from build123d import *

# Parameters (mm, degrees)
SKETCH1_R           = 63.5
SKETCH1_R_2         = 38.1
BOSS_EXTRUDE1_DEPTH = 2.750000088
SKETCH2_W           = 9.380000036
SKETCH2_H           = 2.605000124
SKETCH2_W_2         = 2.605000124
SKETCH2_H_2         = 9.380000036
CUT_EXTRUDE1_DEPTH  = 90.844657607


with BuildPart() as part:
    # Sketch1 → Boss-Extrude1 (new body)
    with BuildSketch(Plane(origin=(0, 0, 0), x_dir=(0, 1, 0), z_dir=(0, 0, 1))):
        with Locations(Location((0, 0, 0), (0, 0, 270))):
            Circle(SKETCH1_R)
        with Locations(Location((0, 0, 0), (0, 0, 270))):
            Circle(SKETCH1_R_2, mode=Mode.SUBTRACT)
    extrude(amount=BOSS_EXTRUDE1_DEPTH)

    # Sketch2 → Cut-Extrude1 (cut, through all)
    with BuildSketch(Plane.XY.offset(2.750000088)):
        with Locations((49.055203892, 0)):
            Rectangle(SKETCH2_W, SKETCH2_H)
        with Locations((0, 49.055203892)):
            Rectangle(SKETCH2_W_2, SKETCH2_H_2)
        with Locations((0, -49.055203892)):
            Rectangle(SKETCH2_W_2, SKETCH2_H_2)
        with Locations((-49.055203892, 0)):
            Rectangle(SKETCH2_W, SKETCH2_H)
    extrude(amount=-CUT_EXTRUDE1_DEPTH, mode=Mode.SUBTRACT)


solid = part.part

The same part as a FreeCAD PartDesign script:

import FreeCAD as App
import Part
import Sketcher
from FreeCAD import Vector
Q = App.Units.Quantity

doc = App.newDocument("Part")
body = doc.addObject("PartDesign::Body", "Body")

# Sketch on XY plane
sketch1 = body.newObject("Sketcher::SketchObject", "Sketch")
sketch1.AttachmentSupport = (doc.getObject("XY_Plane"), [""])
sketch1.MapMode = "FlatFace"
sketch1.addGeometry([
    Part.Circle(Vector(0, 0, 0), Vector(0, 0, 1), 63.5),
    Part.Circle(Vector(0, 0, 0), Vector(0, 0, 1), 38.1),
], False)
sketch1.addConstraint([
    Sketcher.Constraint("Coincident", 0, 3, -1, 1),
    Sketcher.Constraint("Coincident", 1, 3, -1, 1),
    Sketcher.Constraint("Diameter", 0, Q("5 in")),
    Sketcher.Constraint("Diameter", 1, Q("3 in")),
])
pad1 = body.newObject("PartDesign::Pad", "Pad")
pad1.Profile = sketch1
pad1.Length = 2.75

# Sketch on XY plane
sketch2 = body.newObject("Sketcher::SketchObject", "Sketch001")
sketch2.AttachmentSupport = (doc.getObject("XY_Plane"), [""])
sketch2.MapMode = "FlatFace"
sketch2.AttachmentOffset = App.Placement(Vector(0, 0, 2.75), App.Rotation())
sketch2.addGeometry([
    Part.LineSegment(Vector(44.365204, 1.3025, 0), Vector(44.365204, -1.3025, 0)),  # 0
    Part.LineSegment(Vector(44.365204, -1.3025, 0), Vector(53.745204, -1.3025, 0)),  # 1
    Part.LineSegment(Vector(53.745204, -1.3025, 0), Vector(53.745204, 1.3025, 0)),  # 2
    Part.LineSegment(Vector(53.745204, 1.3025, 0), Vector(44.365204, 1.3025, 0)),  # 3
    Part.LineSegment(Vector(-1.3025, 53.745204, 0), Vector(-1.3025, 44.365204, 0)),  # 4
    Part.LineSegment(Vector(-1.3025, 44.365204, 0), Vector(1.3025, 44.365204, 0)),  # 5
    Part.LineSegment(Vector(1.3025, 44.365204, 0), Vector(1.3025, 53.745204, 0)),  # 6
    Part.LineSegment(Vector(1.3025, 53.745204, 0), Vector(-1.3025, 53.745204, 0)),  # 7
    Part.LineSegment(Vector(-1.3025, -44.365204, 0), Vector(-1.3025, -53.745204, 0)),  # 8
    Part.LineSegment(Vector(-1.3025, -53.745204, 0), Vector(1.3025, -53.745204, 0)),  # 9
    Part.LineSegment(Vector(1.3025, -53.745204, 0), Vector(1.3025, -44.365204, 0)),  # 10
    Part.LineSegment(Vector(1.3025, -44.365204, 0), Vector(-1.3025, -44.365204, 0)),  # 11
    Part.LineSegment(Vector(-53.745204, 1.3025, 0), Vector(-53.745204, -1.3025, 0)),  # 12
    Part.LineSegment(Vector(-53.745204, -1.3025, 0), Vector(-44.365204, -1.3025, 0)),  # 13
    Part.LineSegment(Vector(-44.365204, -1.3025, 0), Vector(-44.365204, 1.3025, 0)),  # 14
    Part.LineSegment(Vector(-44.365204, 1.3025, 0), Vector(-53.745204, 1.3025, 0)),  # 15
], False)
sketch2.addConstraint([
    Sketcher.Constraint("Coincident", 0, 2, 1, 1),
    Sketcher.Constraint("Coincident", 1, 2, 2, 1),
    Sketcher.Constraint("Coincident", 2, 2, 3, 1),
    Sketcher.Constraint("Coincident", 3, 2, 0, 1),
    Sketcher.Constraint("Coincident", 4, 2, 5, 1),
    Sketcher.Constraint("Coincident", 5, 2, 6, 1),
    Sketcher.Constraint("Coincident", 6, 2, 7, 1),
    Sketcher.Constraint("Coincident", 7, 2, 4, 1),
    Sketcher.Constraint("Coincident", 8, 2, 9, 1),
    Sketcher.Constraint("Coincident", 9, 2, 10, 1),
    Sketcher.Constraint("Coincident", 10, 2, 11, 1),
    Sketcher.Constraint("Coincident", 11, 2, 8, 1),
    Sketcher.Constraint("Coincident", 12, 2, 13, 1),
    Sketcher.Constraint("Coincident", 13, 2, 14, 1),
    Sketcher.Constraint("Coincident", 14, 2, 15, 1),
    Sketcher.Constraint("Coincident", 15, 2, 12, 1),
    Sketcher.Constraint("Vertical", 0),
    Sketcher.Constraint("Horizontal", 1),
    Sketcher.Constraint("Vertical", 2),
    Sketcher.Constraint("Horizontal", 3),
    Sketcher.Constraint("Vertical", 4),
    Sketcher.Constraint("Horizontal", 5),
    Sketcher.Constraint("Vertical", 6),
    Sketcher.Constraint("Horizontal", 7),
    Sketcher.Constraint("Vertical", 8),
    Sketcher.Constraint("Horizontal", 9),
    Sketcher.Constraint("Vertical", 10),
    Sketcher.Constraint("Horizontal", 11),
    Sketcher.Constraint("Vertical", 12),
    Sketcher.Constraint("Horizontal", 13),
    Sketcher.Constraint("Vertical", 14),
    Sketcher.Constraint("Horizontal", 15),
    Sketcher.Constraint("Symmetric", 6, 2, 8, 2, -1, 1),
    Sketcher.Constraint("Symmetric", 4, 2, 10, 2, -1, 1),
    Sketcher.Constraint("Symmetric", 2, 2, 12, 2, -1, 1),
    Sketcher.Constraint("Symmetric", 0, 2, 14, 2, -1, 1),
    Sketcher.Constraint("Horizontal", 1, 2, 12, 2),
    Sketcher.Constraint("Vertical", 7, 2, 8, 2),
    Sketcher.Constraint("Equal", 11, 0),
    Sketcher.Constraint("Equal", 15, 4),
    Sketcher.Constraint("DistanceX", 1, 1, 1, 2, 9.38),
    Sketcher.Constraint("DistanceX", 5, 1, 5, 2, 2.605),
    Sketcher.Constraint("DistanceX", -1, 1, 0, 2, 44.365204),
    Sketcher.Constraint("DistanceY", -1, 1, 4, 2, 44.365204),
])
pocket1 = body.newObject("PartDesign::Pocket", "Pocket")
pocket1.Profile = sketch2
pocket1.Type = "ThroughAll"

doc.recompute()
